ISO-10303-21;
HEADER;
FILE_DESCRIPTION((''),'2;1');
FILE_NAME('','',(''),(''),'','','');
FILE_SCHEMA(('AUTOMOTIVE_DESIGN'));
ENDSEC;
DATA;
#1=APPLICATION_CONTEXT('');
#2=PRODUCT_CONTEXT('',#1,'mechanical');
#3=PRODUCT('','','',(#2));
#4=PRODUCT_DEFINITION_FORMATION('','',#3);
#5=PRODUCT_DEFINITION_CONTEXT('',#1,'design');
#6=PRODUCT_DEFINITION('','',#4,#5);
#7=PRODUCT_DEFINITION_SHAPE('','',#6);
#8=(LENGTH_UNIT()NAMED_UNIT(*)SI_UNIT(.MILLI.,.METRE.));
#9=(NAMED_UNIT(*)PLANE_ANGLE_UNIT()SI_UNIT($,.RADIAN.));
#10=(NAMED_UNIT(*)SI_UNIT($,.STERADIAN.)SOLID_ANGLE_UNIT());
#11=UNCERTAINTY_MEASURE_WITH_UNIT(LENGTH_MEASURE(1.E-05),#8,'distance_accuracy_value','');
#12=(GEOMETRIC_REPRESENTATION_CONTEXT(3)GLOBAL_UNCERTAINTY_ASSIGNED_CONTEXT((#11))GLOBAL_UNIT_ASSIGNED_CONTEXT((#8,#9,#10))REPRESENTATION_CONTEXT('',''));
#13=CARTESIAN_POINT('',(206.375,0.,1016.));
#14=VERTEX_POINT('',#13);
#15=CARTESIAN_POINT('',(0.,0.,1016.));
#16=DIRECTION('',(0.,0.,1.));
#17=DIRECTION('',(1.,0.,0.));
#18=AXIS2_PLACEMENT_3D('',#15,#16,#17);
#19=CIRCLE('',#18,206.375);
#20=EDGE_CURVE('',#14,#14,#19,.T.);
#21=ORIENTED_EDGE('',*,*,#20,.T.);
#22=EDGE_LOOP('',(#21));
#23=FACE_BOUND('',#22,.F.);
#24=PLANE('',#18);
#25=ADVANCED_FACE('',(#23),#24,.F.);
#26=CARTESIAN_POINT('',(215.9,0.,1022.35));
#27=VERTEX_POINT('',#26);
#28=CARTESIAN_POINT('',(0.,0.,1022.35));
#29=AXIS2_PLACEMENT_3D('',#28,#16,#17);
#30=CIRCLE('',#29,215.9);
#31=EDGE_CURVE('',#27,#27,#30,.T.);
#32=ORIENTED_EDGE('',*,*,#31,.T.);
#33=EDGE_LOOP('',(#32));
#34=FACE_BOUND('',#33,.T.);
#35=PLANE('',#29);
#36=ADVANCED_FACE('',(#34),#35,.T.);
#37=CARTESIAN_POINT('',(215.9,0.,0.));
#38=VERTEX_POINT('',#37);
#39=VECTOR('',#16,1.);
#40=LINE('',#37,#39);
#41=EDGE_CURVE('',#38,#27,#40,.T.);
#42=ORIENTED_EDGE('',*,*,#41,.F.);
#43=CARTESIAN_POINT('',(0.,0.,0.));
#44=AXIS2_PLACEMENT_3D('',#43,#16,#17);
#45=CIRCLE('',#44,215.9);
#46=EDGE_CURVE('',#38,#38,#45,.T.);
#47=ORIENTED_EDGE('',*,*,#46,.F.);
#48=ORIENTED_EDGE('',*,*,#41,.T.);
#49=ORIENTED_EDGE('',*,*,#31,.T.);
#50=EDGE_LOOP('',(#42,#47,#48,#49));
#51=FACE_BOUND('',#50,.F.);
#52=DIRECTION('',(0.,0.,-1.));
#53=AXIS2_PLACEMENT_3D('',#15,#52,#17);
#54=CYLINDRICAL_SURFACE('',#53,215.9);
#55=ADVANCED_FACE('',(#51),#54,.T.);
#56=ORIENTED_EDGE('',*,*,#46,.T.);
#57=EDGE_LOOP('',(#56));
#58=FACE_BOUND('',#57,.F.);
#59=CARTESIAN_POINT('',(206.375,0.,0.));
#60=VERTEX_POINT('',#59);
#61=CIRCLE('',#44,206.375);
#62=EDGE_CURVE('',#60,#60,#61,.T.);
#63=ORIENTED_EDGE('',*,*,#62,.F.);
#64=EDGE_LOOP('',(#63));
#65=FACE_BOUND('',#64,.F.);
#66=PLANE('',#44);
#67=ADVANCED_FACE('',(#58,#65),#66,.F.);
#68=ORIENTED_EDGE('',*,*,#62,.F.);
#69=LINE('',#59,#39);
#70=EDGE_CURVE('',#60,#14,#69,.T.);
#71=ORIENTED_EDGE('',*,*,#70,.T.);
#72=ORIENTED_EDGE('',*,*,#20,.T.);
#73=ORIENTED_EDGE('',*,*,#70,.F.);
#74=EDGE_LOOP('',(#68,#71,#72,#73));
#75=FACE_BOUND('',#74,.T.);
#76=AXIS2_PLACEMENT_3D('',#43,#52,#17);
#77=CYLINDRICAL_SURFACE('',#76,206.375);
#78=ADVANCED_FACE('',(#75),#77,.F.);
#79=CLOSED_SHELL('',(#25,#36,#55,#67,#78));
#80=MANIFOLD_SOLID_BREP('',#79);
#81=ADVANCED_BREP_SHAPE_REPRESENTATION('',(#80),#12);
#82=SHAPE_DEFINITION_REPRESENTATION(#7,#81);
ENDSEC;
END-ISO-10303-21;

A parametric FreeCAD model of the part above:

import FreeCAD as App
import Part
import Sketcher

V = App.Vector
Q = App.Units.Quantity

doc = App.newDocument("Part")
body = doc.addObject("PartDesign::Body", "Body")

sketch1 = body.newObject("Sketcher::SketchObject", "Sketch")
sketch1.AttachmentSupport = (doc.getObject("XY_Plane"), [""])
sketch1.MapMode = "FlatFace"
sketch1.addGeometry([
    Part.Circle(V(0, 0, 0), V(0, 0, 1), 215.9),
    Part.Circle(V(0, 0, 0), V(0, 0, 1), 206.375),
], False)
sketch1.addConstraint([
    Sketcher.Constraint("Coincident", 0, 3, -1, 1),
    Sketcher.Constraint("Coincident", 1, 3, -1, 1),
    Sketcher.Constraint("Diameter", 0, Q("17 in")),
    Sketcher.Constraint("Diameter", 1, Q("16.25 in")),
])
pad1 = body.newObject("PartDesign::Pad", "Pad")
pad1.Profile = sketch1
pad1.Length = Q("18 in")

sketch2 = body.newObject("Sketcher::SketchObject", "Sketch001")
sketch2.AttachmentSupport = (doc.getObject("XY_Plane"), [""])
sketch2.MapMode = "FlatFace"
sketch2.addGeometry([
    Part.Circle(V(0, 0, 0), V(0, 0, 1), 215.9),
    Part.Circle(V(0, 0, 0), V(0, 0, 1), 206.375),
], False)
sketch2.addConstraint([
    Sketcher.Constraint("Coincident", 0, 3, -1, 1),
    Sketcher.Constraint("Coincident", 1, 3, -1, 1),
    Sketcher.Constraint("Diameter", 0, Q("17 in")),
    Sketcher.Constraint("Diameter", 1, Q("16.25 in")),
])
pad2 = body.newObject("PartDesign::Pad", "Pad001")
pad2.Profile = sketch2
pad2.Length = Q("40 in")

sketch3 = body.newObject("Sketcher::SketchObject", "Sketch002")
sketch3.AttachmentSupport = (doc.getObject("XY_Plane"), [""])
sketch3.MapMode = "FlatFace"
sketch3.AttachmentOffset = App.Placement(V(0, 0, 40 * 25.4), App.Rotation())
sketch3.addGeometry(Part.Circle(V(0, 0, 0), V(0, 0, 1), 215.9), False)
sketch3.addConstraint([
    Sketcher.Constraint("Coincident", 0, 3, -1, 1),
    Sketcher.Constraint("Diameter", 0, Q("17 in")),
])
pad3 = body.newObject("PartDesign::Pad", "Pad002")
pad3.Profile = sketch3
pad3.Length = Q("0.25 in")

doc.recompute()
